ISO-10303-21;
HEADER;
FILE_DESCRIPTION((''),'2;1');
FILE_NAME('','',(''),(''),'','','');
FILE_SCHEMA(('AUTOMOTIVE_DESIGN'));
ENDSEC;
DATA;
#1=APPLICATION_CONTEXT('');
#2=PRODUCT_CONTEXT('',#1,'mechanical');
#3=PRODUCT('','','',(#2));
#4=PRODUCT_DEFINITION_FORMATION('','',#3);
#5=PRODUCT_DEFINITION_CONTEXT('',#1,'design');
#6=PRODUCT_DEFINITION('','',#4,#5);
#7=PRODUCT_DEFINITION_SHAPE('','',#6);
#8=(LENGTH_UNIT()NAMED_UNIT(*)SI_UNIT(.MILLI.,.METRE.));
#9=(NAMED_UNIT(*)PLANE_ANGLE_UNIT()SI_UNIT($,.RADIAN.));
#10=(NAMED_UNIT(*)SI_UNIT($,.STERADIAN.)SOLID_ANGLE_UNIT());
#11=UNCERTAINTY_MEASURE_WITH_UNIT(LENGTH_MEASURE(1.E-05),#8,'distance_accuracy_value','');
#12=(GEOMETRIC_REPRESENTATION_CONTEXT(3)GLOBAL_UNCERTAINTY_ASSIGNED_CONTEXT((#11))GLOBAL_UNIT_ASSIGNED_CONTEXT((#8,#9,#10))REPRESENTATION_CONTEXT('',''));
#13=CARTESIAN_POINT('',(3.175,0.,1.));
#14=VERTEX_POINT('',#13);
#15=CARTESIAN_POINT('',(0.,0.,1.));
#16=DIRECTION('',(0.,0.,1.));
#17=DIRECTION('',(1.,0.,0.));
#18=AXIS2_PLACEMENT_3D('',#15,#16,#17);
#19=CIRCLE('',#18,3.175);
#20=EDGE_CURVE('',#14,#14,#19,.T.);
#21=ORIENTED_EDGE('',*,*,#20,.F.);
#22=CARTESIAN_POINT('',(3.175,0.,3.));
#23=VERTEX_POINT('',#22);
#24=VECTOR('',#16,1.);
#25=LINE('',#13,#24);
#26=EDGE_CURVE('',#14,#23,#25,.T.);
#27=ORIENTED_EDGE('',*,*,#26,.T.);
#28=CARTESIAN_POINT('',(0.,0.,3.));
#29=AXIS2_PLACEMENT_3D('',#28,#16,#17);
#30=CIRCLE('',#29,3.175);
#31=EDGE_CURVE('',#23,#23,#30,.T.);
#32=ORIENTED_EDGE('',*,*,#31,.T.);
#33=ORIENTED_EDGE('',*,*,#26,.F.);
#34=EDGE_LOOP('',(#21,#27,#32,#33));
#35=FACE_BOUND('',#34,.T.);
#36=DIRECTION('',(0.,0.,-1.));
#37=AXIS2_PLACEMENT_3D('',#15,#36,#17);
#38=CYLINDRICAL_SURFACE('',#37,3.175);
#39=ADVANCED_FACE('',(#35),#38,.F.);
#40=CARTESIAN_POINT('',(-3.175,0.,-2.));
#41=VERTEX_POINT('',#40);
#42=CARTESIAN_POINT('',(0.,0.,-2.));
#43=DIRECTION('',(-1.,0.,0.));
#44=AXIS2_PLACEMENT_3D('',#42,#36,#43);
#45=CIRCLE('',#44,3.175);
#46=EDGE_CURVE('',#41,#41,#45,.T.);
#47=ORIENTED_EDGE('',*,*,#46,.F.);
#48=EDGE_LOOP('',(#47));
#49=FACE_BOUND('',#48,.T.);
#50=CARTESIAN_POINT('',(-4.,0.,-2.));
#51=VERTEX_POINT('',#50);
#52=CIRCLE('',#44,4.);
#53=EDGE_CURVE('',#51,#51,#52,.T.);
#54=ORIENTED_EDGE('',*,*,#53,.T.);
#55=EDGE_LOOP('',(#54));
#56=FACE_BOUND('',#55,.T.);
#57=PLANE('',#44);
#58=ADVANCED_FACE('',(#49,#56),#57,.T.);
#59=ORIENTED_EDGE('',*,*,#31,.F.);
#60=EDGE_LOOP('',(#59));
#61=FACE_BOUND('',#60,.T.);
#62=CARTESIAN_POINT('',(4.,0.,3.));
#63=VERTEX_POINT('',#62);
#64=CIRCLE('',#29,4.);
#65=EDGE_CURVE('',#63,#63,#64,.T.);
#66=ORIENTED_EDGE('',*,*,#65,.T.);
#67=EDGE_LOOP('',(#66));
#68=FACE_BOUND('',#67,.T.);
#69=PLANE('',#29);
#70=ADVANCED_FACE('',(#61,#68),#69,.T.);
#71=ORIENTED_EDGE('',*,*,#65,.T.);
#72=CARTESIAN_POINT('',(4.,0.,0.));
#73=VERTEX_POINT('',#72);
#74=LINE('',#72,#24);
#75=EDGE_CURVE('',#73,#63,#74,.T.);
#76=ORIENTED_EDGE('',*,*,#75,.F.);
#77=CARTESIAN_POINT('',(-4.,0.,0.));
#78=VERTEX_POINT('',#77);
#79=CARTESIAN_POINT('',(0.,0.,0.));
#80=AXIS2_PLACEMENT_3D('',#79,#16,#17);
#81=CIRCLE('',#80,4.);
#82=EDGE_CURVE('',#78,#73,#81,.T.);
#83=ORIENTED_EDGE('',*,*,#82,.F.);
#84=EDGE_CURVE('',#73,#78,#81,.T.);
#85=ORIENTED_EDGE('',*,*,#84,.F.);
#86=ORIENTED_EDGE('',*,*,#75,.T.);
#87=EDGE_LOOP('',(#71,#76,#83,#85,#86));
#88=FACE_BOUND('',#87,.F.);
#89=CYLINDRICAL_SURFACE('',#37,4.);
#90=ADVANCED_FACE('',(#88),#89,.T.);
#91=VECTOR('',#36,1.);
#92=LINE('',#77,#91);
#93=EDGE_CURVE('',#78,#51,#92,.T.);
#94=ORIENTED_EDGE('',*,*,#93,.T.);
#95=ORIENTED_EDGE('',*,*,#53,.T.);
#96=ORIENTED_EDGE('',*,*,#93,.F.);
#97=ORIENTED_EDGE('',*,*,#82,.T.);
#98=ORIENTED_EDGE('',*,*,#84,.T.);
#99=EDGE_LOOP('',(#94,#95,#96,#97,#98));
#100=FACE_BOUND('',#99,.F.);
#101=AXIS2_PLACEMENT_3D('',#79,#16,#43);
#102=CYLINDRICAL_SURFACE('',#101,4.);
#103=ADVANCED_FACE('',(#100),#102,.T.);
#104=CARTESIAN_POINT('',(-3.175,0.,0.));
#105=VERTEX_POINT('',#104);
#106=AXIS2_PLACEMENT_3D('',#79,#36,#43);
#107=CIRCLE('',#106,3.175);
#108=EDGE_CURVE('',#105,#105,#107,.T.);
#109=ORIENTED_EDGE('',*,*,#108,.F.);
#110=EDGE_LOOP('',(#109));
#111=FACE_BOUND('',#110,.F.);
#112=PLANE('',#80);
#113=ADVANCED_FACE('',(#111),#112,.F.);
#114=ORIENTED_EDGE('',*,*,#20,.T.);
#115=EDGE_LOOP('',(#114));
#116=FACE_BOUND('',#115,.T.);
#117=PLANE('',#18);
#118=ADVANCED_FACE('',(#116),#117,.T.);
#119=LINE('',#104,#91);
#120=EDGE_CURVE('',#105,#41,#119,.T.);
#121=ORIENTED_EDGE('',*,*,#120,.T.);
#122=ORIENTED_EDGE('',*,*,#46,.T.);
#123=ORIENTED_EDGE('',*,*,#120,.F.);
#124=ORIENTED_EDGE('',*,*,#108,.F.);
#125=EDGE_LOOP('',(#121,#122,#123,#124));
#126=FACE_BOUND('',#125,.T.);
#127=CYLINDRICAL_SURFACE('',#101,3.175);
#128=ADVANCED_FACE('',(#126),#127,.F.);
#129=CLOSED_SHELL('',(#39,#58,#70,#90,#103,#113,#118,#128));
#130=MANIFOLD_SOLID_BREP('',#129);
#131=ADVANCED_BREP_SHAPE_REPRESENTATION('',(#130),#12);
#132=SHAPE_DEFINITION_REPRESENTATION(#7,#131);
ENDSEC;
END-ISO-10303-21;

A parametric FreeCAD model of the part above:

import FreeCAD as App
import Part
import Sketcher
Q = App.Units.Quantity

doc = App.newDocument("Part")
params = doc.addObject("Spreadsheet::Sheet", "Params")
for row, (alias, value) in enumerate([
    ("sketch1_diameter", "8 mm"),
    ("pad1_length", "1 mm"),
    ("sketch2_diameter", "8 mm"),
    ("sketch2_diameter2", "6.35 mm"),
    ("pad2_length", "2 mm"),
    ("sketch3_diameter", "8 mm"),
    ("sketch3_diameter2", "6.35 mm"),
    ("pad3_length", "2 mm"),
], start=1):
    params.set(f"A{row}", alias)
    params.set(f"B{row}", "=" + value)
    params.setAlias(f"B{row}", alias)

body = doc.addObject("PartDesign::Body", "Body")

sketch1 = doc.addObject("Sketcher::SketchObject", "Sketch")
body.addObject(sketch1)
sketch1.AttachmentSupport = (doc.XY_Plane, [""])
sketch1.MapMode = "FlatFace"
sketch1.addGeometry(Part.Circle(App.Vector(0, 0, 0), App.Vector(0, 0, 1), 4), False)
sketch1.addConstraint(Sketcher.Constraint("Coincident", 0, 3, -1, 1))
sketch1.addConstraint(Sketcher.Constraint("Diameter", 0, Q("8 mm")))
sketch1.setExpression("Constraints[1]", "Params.sketch1_diameter")
pad1 = doc.addObject("PartDesign::Pad", "Pad")
body.addObject(pad1)
pad1.Profile = sketch1
pad1.setExpression("Length", "Params.pad1_length")

sketch2 = doc.addObject("Sketcher::SketchObject", "Sketch001")
body.addObject(sketch2)
sketch2.AttachmentSupport = (doc.XY_Plane, [""])
sketch2.MapMode = "FlatFace"
sketch2.AttachmentOffset = App.Placement(App.Vector(0, 0, 1), App.Rotation())
sketch2.addGeometry(Part.Circle(App.Vector(0, 0, 0), App.Vector(0, 0, 1), 4), False)
sketch2.addGeometry(Part.Circle(App.Vector(0, 0, 0), App.Vector(0, 0, 1), 3.2), False)
sketch2.addConstraint(Sketcher.Constraint("Coincident", 0, 3, -1, 1))
sketch2.addConstraint(Sketcher.Constraint("Coincident", 1, 3, -1, 1))
sketch2.addConstraint(Sketcher.Constraint("Diameter", 0, Q("8 mm")))
sketch2.addConstraint(Sketcher.Constraint("Diameter", 1, Q("6.35 mm")))
sketch2.setExpression("Constraints[2]", "Params.sketch2_diameter")
sketch2.setExpression("Constraints[3]", "Params.sketch2_diameter2")
pad2 = doc.addObject("PartDesign::Pad", "Pad001")
body.addObject(pad2)
pad2.Profile = sketch2
pad2.setExpression("Length", "Params.pad2_length")

sketch3 = doc.addObject("Sketcher::SketchObject", "Sketch002")
body.addObject(sketch3)
sketch3.AttachmentSupport = (doc.XY_Plane, [""])
sketch3.MapMode = "FlatFace"
sketch3.addGeometry(Part.Circle(App.Vector(0, 0, 0), App.Vector(0, 0, 1), 4), False)
sketch3.addGeometry(Part.Circle(App.Vector(0, 0, 0), App.Vector(0, 0, 1), 3.2), False)
sketch3.addConstraint(Sketcher.Constraint("Coincident", 0, 3, -1, 1))
sketch3.addConstraint(Sketcher.Constraint("Coincident", 1, 3, -1, 1))
sketch3.addConstraint(Sketcher.Constraint("Diameter", 0, Q("8 mm")))
sketch3.addConstraint(Sketcher.Constraint("Diameter", 1, Q("6.35 mm")))
sketch3.setExpression("Constraints[2]", "Params.sketch3_diameter")
sketch3.setExpression("Constraints[3]", "Params.sketch3_diameter2")
pad3 = doc.addObject("PartDesign::Pad", "Pad002")
body.addObject(pad3)
pad3.Profile = sketch3
pad3.setExpression("Length", "Params.pad3_length")
pad3.Reversed = True

doc.recompute()
